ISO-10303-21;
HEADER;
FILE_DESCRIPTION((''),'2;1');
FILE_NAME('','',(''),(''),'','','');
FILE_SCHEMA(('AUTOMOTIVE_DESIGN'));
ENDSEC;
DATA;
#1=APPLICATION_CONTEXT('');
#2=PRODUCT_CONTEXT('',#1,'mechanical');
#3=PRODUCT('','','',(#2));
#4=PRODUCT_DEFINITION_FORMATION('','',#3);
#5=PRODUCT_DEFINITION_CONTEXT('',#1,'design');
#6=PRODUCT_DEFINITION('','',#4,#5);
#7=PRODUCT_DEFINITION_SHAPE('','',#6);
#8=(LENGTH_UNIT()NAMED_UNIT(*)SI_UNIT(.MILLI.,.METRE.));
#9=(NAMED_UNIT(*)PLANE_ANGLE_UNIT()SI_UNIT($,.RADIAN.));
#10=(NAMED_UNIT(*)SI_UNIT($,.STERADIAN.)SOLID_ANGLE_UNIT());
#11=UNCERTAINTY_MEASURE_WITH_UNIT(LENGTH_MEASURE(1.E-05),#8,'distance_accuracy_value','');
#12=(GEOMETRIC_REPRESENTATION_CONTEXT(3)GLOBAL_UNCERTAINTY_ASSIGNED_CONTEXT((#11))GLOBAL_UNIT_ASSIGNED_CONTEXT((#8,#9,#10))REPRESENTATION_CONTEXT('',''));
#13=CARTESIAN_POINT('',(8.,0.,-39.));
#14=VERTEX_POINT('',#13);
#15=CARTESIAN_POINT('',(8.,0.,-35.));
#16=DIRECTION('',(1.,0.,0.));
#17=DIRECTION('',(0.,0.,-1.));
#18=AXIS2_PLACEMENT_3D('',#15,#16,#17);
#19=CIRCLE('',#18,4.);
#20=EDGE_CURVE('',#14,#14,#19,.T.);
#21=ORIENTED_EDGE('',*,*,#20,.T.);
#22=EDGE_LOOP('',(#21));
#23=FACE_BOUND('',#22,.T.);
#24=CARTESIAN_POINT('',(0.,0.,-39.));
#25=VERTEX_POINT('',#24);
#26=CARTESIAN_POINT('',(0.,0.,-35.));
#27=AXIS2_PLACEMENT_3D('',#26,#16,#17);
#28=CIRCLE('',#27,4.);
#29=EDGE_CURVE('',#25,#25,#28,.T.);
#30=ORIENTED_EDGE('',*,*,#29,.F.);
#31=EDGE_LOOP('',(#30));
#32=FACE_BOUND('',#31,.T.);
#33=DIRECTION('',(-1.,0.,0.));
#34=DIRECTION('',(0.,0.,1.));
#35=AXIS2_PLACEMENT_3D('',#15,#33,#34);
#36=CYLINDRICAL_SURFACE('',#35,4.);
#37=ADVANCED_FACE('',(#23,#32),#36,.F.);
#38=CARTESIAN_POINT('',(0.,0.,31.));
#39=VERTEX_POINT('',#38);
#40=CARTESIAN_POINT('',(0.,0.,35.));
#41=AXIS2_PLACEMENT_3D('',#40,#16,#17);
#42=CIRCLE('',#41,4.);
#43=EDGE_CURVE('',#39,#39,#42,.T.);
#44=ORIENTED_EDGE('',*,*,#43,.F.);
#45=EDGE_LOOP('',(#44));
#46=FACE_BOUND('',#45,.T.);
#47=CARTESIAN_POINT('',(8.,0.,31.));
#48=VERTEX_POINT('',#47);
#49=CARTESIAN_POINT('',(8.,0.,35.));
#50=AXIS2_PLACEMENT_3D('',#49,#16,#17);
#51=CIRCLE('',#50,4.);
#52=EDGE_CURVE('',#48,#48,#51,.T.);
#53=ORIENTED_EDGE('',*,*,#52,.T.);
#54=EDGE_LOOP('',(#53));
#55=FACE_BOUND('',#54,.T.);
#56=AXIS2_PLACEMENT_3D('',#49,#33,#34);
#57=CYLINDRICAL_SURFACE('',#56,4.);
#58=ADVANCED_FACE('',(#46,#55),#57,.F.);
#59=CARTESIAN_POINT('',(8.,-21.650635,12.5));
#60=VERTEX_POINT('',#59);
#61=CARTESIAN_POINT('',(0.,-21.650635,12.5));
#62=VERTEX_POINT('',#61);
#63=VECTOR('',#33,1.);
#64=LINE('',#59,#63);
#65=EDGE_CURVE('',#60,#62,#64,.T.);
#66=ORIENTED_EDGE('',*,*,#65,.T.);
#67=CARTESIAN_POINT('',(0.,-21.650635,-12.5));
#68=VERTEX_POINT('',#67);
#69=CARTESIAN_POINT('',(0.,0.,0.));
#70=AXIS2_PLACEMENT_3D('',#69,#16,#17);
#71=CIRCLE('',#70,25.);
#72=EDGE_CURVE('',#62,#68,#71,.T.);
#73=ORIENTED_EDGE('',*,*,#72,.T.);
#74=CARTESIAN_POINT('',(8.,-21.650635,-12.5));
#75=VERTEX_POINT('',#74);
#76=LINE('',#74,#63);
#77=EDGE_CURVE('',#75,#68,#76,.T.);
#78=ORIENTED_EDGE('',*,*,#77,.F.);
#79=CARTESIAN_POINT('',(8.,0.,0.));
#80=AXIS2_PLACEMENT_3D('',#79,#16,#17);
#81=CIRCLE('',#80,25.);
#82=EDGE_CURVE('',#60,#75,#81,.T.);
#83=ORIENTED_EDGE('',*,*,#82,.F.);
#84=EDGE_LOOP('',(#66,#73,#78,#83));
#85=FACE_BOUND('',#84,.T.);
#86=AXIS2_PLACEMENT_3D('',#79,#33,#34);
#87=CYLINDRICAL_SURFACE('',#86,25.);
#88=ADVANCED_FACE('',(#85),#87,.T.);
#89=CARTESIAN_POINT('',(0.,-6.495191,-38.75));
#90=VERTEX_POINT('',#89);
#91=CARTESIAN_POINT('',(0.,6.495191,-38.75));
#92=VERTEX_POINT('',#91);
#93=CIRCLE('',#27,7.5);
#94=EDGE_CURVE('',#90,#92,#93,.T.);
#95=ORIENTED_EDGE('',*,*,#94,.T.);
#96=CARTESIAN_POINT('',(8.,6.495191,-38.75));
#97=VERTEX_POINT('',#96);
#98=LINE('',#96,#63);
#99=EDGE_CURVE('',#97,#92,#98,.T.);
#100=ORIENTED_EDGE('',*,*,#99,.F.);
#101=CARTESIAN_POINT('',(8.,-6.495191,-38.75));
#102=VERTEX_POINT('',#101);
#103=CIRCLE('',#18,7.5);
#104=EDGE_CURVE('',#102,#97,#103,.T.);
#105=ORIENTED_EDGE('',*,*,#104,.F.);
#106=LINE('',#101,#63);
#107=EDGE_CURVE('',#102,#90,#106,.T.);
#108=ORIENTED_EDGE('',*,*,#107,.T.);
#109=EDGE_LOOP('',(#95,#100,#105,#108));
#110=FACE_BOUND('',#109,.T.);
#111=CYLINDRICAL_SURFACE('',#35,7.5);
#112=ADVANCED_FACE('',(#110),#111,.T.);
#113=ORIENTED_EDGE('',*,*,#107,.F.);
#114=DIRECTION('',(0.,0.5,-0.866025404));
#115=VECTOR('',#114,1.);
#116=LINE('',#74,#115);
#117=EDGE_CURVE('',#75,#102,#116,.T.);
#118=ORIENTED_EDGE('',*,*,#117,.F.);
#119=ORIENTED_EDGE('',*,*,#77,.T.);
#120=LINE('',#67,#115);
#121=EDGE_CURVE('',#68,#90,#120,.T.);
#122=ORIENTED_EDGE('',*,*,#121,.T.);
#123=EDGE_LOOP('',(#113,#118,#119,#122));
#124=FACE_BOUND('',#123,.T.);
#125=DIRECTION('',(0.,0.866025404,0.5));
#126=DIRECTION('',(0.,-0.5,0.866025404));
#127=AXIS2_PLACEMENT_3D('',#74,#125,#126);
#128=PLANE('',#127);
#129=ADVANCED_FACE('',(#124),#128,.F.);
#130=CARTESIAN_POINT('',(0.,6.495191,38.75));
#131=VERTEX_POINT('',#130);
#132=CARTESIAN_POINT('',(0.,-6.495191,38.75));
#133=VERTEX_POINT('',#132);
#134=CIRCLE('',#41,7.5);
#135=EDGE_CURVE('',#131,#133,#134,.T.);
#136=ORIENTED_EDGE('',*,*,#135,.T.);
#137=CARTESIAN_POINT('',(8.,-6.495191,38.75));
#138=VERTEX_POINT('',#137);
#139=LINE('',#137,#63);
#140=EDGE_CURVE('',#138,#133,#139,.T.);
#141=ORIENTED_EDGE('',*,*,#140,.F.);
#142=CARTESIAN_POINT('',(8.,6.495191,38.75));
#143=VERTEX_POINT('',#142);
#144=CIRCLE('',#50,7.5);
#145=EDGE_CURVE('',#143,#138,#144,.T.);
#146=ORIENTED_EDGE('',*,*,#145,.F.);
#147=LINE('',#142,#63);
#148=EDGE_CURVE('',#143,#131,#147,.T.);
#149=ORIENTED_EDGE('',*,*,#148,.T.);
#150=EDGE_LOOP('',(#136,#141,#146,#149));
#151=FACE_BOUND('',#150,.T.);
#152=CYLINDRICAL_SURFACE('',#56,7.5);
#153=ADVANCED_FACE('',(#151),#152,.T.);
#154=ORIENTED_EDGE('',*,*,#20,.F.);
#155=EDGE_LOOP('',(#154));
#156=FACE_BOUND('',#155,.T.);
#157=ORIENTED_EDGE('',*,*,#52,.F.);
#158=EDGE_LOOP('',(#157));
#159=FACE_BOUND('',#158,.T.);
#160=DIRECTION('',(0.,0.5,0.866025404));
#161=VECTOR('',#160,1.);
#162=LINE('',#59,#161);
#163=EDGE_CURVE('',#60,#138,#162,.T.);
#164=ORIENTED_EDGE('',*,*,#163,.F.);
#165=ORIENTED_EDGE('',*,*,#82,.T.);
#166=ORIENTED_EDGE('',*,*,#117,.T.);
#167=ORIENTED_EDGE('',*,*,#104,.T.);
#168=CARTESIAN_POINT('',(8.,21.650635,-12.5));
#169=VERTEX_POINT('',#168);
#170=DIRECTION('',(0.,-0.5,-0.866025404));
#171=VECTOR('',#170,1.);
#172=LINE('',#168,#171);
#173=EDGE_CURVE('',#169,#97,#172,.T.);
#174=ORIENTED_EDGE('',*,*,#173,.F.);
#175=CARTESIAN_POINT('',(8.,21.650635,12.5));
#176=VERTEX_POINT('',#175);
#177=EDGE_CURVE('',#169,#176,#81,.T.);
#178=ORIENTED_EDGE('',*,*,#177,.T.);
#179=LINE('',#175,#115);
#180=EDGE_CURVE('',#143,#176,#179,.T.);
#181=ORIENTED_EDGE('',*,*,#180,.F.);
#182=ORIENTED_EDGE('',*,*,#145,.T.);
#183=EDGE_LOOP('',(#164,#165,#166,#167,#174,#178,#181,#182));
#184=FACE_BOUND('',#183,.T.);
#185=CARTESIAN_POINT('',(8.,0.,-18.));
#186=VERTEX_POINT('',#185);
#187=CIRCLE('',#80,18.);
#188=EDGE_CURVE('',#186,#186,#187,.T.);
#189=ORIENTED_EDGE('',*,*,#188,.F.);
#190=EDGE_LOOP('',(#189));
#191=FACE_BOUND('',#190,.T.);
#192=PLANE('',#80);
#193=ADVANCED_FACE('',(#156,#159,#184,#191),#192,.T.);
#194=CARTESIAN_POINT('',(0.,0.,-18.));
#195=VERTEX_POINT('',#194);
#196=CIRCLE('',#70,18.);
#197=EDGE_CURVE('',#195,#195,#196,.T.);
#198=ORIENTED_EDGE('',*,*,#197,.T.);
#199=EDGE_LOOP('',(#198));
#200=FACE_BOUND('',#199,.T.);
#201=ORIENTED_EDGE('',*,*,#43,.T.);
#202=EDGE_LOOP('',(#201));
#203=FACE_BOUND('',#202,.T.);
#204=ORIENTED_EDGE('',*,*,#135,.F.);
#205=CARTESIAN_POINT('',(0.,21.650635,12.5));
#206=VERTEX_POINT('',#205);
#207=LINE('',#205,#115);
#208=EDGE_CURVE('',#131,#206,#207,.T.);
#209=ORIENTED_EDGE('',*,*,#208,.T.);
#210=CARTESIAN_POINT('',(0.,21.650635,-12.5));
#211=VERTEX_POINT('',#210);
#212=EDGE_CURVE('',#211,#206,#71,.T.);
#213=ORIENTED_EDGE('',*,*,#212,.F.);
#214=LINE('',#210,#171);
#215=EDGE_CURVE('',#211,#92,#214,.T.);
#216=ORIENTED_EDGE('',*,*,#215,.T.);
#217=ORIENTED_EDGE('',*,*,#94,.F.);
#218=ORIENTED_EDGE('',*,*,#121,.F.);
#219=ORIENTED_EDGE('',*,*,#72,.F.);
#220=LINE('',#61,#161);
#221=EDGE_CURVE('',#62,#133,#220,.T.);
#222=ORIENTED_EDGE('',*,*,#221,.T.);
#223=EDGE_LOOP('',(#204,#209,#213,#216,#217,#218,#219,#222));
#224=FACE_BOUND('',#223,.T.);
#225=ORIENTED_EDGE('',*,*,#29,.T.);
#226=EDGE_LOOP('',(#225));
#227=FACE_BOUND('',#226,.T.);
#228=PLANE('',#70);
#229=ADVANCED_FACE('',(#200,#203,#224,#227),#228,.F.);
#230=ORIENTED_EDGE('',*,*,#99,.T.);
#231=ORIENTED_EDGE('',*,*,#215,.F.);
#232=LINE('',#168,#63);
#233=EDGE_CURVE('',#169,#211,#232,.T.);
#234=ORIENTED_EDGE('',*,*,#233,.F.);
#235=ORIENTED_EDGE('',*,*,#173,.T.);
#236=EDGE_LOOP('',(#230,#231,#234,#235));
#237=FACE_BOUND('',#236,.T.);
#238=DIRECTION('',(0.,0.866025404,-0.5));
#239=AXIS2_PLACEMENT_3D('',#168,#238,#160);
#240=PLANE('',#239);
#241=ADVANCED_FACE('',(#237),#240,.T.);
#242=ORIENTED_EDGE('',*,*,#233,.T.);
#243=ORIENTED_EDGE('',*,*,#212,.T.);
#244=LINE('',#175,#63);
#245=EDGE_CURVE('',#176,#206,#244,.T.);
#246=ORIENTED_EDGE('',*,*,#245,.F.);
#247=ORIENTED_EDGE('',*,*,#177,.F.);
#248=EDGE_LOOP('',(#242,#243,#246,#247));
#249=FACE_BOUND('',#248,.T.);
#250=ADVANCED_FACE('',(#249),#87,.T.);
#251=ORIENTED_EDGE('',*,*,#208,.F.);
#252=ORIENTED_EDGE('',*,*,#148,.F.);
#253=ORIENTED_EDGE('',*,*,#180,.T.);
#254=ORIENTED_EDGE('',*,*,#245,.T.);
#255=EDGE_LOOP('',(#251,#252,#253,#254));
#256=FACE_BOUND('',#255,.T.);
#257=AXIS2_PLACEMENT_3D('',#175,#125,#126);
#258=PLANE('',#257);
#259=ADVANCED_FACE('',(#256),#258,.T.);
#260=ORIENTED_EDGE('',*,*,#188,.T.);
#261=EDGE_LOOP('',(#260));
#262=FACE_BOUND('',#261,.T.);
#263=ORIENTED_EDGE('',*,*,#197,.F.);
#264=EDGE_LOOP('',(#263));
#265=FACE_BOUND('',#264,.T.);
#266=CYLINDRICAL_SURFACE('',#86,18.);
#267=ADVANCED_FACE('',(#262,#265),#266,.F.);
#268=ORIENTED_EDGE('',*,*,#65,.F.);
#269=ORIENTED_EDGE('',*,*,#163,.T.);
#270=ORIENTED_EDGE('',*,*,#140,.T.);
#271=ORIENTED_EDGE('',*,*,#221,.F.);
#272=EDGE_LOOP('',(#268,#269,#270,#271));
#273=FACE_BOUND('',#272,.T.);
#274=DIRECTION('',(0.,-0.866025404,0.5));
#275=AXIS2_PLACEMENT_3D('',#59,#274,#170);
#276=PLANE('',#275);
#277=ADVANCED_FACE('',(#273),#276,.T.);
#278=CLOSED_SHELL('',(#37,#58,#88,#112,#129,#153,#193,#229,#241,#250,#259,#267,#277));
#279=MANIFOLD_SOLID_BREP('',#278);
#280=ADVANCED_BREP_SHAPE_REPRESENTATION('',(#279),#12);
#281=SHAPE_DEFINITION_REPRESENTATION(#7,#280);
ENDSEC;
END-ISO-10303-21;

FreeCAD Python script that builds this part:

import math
import FreeCAD as App
import Part
import Sketcher
from FreeCAD import Vector
Q = App.Units.Quantity

doc = App.newDocument("Part")
body = doc.addObject("PartDesign::Body", "Body")

sketch1 = doc.addObject("Sketcher::SketchObject", "Sketch")
body.addObject(sketch1)
sketch1.AttachmentSupport = (doc.YZ_Plane, [""])
sketch1.MapMode = "FlatFace"
sketch1.addGeometry(Part.ArcOfCircle(Part.Circle(Vector(0, 35, 0), Vector(0, 0, 1), 7.5), math.radians(30), math.radians(150)), False)
sketch1.addGeometry(Part.LineSegment(Vector(-6.5, 38.8, 0), Vector(-21.7, 12.5, 0)), False)
sketch1.addGeometry(Part.ArcOfCircle(Part.Circle(Vector(0, 0, 0), Vector(0, 0, 1), 25), math.radians(150), math.radians(210)), False)
sketch1.addGeometry(Part.LineSegment(Vector(-21.7, -12.5, 0), Vector(-6.5, -38.8, 0)), False)
sketch1.addGeometry(Part.ArcOfCircle(Part.Circle(Vector(0, -35, 0), Vector(0, 0, 1), 7.5), math.radians(-150), math.radians(-30)), False)
sketch1.addGeometry(Part.LineSegment(Vector(6.5, -38.8, 0), Vector(21.7, -12.5, 0)), False)
sketch1.addGeometry(Part.ArcOfCircle(Part.Circle(Vector(0, 0, 0), Vector(0, 0, 1), 25), math.radians(-30), math.radians(30)), False)
sketch1.addGeometry(Part.LineSegment(Vector(21.7, 12.5, 0), Vector(6.5, 38.8, 0)), False)
sketch1.addGeometry(Part.Circle(Vector(0, 35, 0), Vector(0, 0, 1), 4), False)
sketch1.addGeometry(Part.Circle(Vector(0, 0, 0), Vector(0, 0, 1), 18), False)
sketch1.addGeometry(Part.Circle(Vector(0, -35, 0), Vector(0, 0, 1), 4), False)
sketch1.addConstraint(Sketcher.Constraint("Tangent", 0, 2, 1, 1))
sketch1.addConstraint(Sketcher.Constraint("Tangent", 1, 2, 2, 1))
sketch1.addConstraint(Sketcher.Constraint("Tangent", 2, 2, 3, 1))
sketch1.addConstraint(Sketcher.Constraint("Tangent", 3, 2, 4, 1))
sketch1.addConstraint(Sketcher.Constraint("Tangent", 4, 2, 5, 1))
sketch1.addConstraint(Sketcher.Constraint("Tangent", 5, 2, 6, 1))
sketch1.addConstraint(Sketcher.Constraint("Tangent", 6, 2, 7, 1))
sketch1.addConstraint(Sketcher.Constraint("Tangent", 7, 2, 0, 1))
sketch1.addConstraint(Sketcher.Constraint("Coincident", 2, 3, -1, 1))
sketch1.addConstraint(Sketcher.Constraint("Coincident", 6, 3, -1, 1))
sketch1.addConstraint(Sketcher.Constraint("Coincident", 9, 3, -1, 1))
sketch1.addConstraint(Sketcher.Constraint("Coincident", 8, 3, 0, 3))
sketch1.addConstraint(Sketcher.Constraint("Coincident", 10, 3, 4, 3))
sketch1.addConstraint(Sketcher.Constraint("Equal", 0, 4))
sketch1.addConstraint(Sketcher.Constraint("Equal", 2, 6))
sketch1.addConstraint(Sketcher.Constraint("Equal", 8, 10))
sketch1.addConstraint(Sketcher.Constraint("Symmetric", 0, 3, 4, 3, -1, 1))
sketch1.addConstraint(Sketcher.Constraint("PointOnObject", 0, 3, -2))
sketch1.addConstraint(Sketcher.Constraint("Diameter", 8, 8.0))
sketch1.addConstraint(Sketcher.Constraint("Diameter", 9, 36.0))
sketch1.addConstraint(Sketcher.Constraint("Radius", 2, 25.0))
sketch1.addConstraint(Sketcher.Constraint("Radius", 0, 7.5))
sketch1.addConstraint(Sketcher.Constraint("Angle", 1, Q("-120 deg")))
pad1 = doc.addObject("PartDesign::Pad", "Pad")
body.addObject(pad1)
pad1.Profile = sketch1
pad1.Length = 8

doc.recompute()
